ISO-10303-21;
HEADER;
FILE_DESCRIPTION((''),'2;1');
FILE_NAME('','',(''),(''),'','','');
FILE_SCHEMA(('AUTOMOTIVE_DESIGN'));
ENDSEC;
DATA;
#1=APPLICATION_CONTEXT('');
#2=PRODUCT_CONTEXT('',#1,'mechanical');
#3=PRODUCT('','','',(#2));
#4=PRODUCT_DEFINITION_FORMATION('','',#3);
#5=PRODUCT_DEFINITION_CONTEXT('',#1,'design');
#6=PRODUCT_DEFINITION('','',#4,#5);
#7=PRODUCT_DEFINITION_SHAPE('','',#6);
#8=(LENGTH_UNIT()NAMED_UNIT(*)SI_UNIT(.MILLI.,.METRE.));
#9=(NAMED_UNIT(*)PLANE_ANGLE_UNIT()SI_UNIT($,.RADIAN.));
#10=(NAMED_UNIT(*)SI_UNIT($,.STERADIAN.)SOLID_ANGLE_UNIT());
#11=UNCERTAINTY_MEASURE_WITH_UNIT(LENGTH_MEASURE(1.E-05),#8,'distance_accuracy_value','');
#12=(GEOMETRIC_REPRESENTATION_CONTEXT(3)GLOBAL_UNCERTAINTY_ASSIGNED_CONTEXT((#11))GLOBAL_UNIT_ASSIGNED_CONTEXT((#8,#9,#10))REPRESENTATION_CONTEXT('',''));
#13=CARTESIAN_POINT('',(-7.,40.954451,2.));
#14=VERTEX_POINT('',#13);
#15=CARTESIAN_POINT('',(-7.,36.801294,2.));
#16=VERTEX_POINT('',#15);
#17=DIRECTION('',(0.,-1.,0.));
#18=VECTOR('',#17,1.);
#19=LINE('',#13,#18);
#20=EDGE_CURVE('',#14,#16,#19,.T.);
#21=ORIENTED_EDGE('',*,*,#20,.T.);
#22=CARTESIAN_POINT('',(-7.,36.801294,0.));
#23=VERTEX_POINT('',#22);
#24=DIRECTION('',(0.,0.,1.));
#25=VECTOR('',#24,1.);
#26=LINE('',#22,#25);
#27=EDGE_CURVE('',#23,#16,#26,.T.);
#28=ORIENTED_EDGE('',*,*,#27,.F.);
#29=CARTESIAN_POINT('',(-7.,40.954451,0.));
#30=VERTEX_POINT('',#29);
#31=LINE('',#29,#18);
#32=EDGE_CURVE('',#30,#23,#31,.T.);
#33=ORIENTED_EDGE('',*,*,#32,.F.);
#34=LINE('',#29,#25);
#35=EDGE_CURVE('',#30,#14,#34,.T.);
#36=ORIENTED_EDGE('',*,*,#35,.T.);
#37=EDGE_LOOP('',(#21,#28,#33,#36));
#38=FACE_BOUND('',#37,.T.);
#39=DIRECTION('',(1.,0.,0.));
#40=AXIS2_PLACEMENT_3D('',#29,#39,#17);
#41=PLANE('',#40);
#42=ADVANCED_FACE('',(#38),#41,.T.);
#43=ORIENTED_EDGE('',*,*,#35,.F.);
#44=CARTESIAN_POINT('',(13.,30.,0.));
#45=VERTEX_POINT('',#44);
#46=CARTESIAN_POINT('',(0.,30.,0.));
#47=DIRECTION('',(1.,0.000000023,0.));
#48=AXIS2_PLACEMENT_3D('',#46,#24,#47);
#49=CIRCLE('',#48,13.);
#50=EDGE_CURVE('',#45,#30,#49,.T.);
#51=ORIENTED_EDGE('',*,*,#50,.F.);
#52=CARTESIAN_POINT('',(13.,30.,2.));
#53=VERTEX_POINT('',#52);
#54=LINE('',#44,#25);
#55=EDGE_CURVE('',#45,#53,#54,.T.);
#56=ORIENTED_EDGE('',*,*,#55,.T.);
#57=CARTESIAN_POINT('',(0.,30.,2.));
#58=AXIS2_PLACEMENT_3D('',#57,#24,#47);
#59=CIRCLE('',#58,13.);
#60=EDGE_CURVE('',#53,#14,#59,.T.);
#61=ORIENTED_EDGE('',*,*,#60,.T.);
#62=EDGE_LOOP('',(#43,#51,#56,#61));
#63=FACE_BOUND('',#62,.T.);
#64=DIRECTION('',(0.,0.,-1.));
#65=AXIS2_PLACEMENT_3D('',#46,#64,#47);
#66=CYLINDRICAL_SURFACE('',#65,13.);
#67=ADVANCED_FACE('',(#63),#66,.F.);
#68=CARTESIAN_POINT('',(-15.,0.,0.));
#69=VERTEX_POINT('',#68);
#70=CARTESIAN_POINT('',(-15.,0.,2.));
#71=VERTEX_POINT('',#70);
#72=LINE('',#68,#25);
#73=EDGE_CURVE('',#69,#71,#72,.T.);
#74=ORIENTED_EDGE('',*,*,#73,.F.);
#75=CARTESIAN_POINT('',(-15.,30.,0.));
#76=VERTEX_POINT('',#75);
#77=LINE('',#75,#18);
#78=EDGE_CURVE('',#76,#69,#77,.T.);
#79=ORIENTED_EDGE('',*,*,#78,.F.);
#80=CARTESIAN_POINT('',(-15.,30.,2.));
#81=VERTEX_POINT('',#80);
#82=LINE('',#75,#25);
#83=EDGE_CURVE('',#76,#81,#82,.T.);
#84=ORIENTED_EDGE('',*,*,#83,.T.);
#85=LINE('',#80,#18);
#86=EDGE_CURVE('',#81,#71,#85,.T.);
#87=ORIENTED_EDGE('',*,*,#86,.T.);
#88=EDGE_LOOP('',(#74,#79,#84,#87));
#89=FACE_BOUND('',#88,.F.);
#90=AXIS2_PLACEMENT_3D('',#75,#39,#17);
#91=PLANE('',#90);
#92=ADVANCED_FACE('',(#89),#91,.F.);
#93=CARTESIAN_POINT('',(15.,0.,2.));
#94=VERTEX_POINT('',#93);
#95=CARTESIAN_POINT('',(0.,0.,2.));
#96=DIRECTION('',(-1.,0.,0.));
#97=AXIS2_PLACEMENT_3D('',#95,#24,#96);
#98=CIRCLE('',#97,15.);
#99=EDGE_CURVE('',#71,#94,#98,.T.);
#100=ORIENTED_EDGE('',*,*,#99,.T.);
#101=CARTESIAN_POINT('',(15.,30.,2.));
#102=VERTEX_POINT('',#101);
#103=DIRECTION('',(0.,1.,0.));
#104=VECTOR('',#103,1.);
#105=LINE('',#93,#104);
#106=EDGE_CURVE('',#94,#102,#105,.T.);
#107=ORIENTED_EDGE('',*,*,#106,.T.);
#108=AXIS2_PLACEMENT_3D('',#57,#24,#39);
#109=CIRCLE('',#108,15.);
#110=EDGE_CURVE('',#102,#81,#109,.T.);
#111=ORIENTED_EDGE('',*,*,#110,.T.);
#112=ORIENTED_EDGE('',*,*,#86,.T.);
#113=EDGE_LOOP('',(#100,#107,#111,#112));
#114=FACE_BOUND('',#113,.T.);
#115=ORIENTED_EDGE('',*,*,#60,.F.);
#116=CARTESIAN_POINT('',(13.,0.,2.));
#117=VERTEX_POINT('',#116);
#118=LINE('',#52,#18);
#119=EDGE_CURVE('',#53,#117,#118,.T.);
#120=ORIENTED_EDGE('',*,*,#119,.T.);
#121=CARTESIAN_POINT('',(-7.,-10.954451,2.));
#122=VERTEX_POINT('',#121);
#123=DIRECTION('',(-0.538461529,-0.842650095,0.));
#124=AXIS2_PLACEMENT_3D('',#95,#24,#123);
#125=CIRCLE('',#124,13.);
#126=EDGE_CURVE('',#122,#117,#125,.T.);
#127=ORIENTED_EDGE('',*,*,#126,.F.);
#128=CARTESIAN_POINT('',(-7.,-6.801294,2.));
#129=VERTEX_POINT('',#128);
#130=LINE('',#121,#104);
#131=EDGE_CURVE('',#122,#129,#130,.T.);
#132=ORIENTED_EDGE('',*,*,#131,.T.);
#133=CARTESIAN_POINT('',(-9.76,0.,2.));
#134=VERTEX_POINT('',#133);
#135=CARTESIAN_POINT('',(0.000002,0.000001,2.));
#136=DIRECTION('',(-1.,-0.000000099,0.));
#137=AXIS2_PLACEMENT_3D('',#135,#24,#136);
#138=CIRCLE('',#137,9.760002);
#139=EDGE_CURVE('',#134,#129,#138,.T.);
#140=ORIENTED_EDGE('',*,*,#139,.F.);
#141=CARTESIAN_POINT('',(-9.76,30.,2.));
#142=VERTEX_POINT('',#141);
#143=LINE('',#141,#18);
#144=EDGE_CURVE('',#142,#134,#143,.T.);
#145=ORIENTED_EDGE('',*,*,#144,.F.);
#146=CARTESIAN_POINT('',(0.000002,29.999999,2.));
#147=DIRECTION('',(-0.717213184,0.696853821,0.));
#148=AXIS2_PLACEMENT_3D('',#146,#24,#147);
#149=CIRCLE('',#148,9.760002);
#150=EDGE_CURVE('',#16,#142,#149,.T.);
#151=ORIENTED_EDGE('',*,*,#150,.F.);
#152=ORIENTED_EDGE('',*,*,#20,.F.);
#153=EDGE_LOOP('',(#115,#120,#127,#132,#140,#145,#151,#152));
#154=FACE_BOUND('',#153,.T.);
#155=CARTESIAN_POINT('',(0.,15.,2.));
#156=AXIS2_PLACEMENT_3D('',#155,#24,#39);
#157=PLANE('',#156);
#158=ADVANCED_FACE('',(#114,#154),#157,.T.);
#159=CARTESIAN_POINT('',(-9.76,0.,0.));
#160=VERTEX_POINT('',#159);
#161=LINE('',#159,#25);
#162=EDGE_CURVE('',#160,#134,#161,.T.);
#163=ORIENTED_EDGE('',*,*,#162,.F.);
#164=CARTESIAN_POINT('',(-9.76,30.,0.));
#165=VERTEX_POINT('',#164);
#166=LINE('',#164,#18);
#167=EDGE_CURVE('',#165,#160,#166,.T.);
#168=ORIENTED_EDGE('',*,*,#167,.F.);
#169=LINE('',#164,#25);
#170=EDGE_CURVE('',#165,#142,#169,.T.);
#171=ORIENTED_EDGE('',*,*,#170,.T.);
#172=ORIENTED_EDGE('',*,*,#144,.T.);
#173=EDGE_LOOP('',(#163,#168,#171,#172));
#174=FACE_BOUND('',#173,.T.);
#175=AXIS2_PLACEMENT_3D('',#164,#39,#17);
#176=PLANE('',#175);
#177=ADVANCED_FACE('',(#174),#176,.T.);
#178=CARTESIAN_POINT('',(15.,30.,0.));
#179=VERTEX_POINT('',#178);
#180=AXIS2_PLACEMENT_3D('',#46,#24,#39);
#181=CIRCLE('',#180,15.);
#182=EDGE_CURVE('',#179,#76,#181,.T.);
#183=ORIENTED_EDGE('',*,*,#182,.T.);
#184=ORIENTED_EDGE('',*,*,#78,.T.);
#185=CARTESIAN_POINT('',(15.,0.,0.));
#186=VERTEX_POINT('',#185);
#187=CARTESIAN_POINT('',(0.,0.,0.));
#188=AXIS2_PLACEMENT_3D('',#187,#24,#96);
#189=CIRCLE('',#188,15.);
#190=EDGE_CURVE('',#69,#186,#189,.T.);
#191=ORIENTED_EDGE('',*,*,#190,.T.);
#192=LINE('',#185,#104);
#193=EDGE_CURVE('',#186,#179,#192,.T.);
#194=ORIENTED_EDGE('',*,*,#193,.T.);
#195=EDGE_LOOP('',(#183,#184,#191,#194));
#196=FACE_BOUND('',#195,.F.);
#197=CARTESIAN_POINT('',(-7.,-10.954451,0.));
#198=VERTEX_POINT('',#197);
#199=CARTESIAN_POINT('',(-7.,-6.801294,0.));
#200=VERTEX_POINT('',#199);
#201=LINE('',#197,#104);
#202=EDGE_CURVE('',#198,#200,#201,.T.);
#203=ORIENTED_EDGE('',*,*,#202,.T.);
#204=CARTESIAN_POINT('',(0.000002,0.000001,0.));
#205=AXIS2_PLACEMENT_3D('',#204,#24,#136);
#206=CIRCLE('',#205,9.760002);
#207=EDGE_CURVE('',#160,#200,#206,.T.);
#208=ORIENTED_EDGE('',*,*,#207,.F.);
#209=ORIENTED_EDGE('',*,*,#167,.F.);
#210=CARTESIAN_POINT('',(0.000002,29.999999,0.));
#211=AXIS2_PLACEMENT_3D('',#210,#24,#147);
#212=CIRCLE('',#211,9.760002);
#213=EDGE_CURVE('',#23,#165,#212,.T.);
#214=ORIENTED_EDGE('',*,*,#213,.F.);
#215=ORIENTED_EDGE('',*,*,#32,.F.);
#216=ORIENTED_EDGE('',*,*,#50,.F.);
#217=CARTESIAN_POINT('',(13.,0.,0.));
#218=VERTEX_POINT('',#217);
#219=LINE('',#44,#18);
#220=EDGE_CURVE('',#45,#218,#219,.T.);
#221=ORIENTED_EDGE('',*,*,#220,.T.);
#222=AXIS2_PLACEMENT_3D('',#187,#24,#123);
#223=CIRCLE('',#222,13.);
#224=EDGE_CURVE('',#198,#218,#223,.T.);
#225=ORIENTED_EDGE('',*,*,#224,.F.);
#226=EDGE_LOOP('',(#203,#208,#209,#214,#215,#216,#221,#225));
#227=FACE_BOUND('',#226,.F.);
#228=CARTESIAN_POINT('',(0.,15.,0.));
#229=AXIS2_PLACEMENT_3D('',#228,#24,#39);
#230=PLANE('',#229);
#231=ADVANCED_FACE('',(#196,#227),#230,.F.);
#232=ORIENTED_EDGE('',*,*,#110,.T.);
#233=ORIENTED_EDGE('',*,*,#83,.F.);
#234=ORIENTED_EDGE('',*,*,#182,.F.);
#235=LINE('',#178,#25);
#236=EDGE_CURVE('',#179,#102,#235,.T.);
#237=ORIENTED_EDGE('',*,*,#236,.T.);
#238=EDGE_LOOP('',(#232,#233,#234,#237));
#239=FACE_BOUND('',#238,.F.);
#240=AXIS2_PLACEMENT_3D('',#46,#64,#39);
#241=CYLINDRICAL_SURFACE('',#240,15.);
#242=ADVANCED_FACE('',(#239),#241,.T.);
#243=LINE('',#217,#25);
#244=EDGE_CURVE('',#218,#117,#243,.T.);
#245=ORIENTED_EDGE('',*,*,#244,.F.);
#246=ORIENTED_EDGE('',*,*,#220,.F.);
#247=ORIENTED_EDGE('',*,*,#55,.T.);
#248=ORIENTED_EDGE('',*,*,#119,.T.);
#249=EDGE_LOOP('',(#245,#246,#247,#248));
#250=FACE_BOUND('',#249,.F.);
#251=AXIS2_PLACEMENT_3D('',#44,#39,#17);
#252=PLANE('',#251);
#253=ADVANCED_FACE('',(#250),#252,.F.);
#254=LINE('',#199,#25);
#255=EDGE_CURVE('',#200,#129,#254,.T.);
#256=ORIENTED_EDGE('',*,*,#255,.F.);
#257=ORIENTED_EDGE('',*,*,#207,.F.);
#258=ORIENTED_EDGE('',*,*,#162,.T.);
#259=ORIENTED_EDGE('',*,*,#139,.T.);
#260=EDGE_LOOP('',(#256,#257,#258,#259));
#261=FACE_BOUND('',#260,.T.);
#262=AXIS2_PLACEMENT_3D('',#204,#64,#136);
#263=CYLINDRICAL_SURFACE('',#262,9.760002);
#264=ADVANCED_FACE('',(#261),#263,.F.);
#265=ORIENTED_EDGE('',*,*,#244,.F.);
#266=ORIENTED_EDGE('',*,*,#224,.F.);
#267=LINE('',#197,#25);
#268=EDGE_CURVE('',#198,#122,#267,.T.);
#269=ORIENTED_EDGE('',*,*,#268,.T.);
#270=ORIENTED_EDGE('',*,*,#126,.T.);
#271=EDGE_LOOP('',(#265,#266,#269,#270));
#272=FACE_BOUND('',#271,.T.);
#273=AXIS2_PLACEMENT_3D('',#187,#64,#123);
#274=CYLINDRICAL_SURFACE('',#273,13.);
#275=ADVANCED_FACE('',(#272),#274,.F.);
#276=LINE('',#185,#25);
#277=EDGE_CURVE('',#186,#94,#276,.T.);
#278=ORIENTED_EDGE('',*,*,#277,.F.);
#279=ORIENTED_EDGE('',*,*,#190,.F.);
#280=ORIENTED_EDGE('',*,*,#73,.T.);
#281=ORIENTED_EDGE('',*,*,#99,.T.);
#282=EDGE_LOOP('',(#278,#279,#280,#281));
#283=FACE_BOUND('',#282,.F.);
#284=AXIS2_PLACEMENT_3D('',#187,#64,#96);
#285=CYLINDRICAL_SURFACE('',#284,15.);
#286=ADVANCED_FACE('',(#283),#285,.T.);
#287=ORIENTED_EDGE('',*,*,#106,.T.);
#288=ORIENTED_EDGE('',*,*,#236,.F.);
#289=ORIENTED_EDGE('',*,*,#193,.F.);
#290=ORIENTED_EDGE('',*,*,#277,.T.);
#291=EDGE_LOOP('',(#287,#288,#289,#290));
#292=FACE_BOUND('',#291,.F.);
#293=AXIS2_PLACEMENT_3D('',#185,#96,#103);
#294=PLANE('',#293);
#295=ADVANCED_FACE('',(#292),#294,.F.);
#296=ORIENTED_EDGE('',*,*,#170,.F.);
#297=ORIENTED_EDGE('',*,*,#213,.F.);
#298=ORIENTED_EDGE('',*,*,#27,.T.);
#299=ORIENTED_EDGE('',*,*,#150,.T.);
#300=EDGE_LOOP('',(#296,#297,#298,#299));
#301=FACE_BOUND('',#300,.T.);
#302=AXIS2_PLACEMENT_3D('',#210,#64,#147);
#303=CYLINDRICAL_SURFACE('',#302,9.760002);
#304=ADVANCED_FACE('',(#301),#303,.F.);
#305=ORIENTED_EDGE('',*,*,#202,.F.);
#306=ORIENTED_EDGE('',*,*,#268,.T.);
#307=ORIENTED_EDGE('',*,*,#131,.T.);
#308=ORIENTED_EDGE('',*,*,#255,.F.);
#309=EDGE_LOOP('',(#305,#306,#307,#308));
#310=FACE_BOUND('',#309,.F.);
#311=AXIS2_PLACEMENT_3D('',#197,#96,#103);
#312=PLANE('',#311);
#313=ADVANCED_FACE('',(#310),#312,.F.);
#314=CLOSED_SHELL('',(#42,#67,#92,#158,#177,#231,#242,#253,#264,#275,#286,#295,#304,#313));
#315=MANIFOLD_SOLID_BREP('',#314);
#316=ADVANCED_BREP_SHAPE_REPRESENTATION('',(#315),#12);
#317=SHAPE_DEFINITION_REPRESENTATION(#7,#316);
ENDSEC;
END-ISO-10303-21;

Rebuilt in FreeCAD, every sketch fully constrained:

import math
import FreeCAD as App
import Part
import Sketcher

doc = App.newDocument("Part")
body = doc.addObject("PartDesign::Body", "Body")

# Sketch on XY plane
sketch1 = body.newObject("Sketcher::SketchObject", "Sketch")
sketch1.AttachmentSupport = (doc.getObject("XY_Plane"), [""])
sketch1.MapMode = "FlatFace"
sketch1.addGeometry([
    Part.ArcOfCircle(Part.Circle(App.Vector(0, 0, 0), App.Vector(0, 0, 1), 15), math.radians(180), math.radians(360)),  # 0
    Part.LineSegment(App.Vector(15, 0, 0), App.Vector(15, 30, 0)),  # 1
    Part.ArcOfCircle(Part.Circle(App.Vector(0, 30, 0), App.Vector(0, 0, 1), 15), math.radians(0), math.radians(180)),  # 2
    Part.LineSegment(App.Vector(-15, 30, 0), App.Vector(-15, 0, 0)),  # 3
    Part.ArcOfCircle(Part.Circle(App.Vector(0, 0, 0), App.Vector(0, 0, 1), 13), math.radians(-122.57897), math.radians(-0.000001)),  # 4
    Part.LineSegment(App.Vector(-7, -10.954451, 0), App.Vector(-7, -6.801294, 0)),  # 5
    Part.ArcOfCircle(Part.Circle(App.Vector(0.000002, 0.000001, 0), App.Vector(0, 0, 1), 9.760002), math.radians(-179.999994), math.radians(-135.824872)),  # 6
    Part.LineSegment(App.Vector(-9.76, 0, 0), App.Vector(-9.76, 30, 0)),  # 7
    Part.ArcOfCircle(Part.Circle(App.Vector(0.000002, 29.999999, 0), App.Vector(0, 0, 1), 9.760002), math.radians(135.824872), math.radians(179.999994)),  # 8
    Part.LineSegment(App.Vector(-7, 36.801294, 0), App.Vector(-7, 40.954451, 0)),  # 9
    Part.ArcOfCircle(Part.Circle(App.Vector(0, 30, 0), App.Vector(0, 0, 1), 13), math.radians(0.000001), math.radians(122.57897)),  # 10
    Part.LineSegment(App.Vector(13, 30, 0), App.Vector(13, 0, 0)),  # 11
], False)
sketch1.addConstraint([
    Sketcher.Constraint("Tangent", 0, 2, 1, 1),
    Sketcher.Constraint("Tangent", 1, 2, 2, 1),
    Sketcher.Constraint("Tangent", 2, 2, 3, 1),
    Sketcher.Constraint("Tangent", 3, 2, 0, 1),
    Sketcher.Constraint("Coincident", 4, 1, 5, 1),
    Sketcher.Constraint("Coincident", 5, 2, 6, 2),
    Sketcher.Constraint("Tangent", 6, 1, 7, 1),
    Sketcher.Constraint("Tangent", 7, 2, 8, 2),
    Sketcher.Constraint("Coincident", 8, 1, 9, 1),
    Sketcher.Constraint("Coincident", 9, 2, 10, 2),
    Sketcher.Constraint("Tangent", 10, 1, 11, 1),
    Sketcher.Constraint("Tangent", 11, 2, 4, 2),
    Sketcher.Constraint("Vertical", 1),
    Sketcher.Constraint("Vertical", 3),
    Sketcher.Constraint("Vertical", 5),
    Sketcher.Constraint("Vertical", 7),
    Sketcher.Constraint("Vertical", 9),
    Sketcher.Constraint("Vertical", 11),
    Sketcher.Constraint("Coincident", 0, 3, -1, 1),
    Sketcher.Constraint("Coincident", 4, 3, -1, 1),
    Sketcher.Constraint("Coincident", 6, 3, -1, 1),
    Sketcher.Constraint("Coincident", 8, 3, 2, 3),
    Sketcher.Constraint("Coincident", 10, 3, 2, 3),
    Sketcher.Constraint("Vertical", 5, 2, 8, 1),
    Sketcher.Constraint("Radius", 0, 15.0),
    Sketcher.Constraint("Radius", 4, 13.0),
    Sketcher.Constraint("DistanceY", 1, 1, 1, 2, 30.0),
    Sketcher.Constraint("DistanceX", 4, 1, -1, 1, 7.0),
    Sketcher.Constraint("DistanceX", 6, 1, -1, 1, 9.76),
])
pad1 = body.newObject("PartDesign::Pad", "Pad")
pad1.Profile = sketch1
pad1.Length = 2

doc.recompute()
